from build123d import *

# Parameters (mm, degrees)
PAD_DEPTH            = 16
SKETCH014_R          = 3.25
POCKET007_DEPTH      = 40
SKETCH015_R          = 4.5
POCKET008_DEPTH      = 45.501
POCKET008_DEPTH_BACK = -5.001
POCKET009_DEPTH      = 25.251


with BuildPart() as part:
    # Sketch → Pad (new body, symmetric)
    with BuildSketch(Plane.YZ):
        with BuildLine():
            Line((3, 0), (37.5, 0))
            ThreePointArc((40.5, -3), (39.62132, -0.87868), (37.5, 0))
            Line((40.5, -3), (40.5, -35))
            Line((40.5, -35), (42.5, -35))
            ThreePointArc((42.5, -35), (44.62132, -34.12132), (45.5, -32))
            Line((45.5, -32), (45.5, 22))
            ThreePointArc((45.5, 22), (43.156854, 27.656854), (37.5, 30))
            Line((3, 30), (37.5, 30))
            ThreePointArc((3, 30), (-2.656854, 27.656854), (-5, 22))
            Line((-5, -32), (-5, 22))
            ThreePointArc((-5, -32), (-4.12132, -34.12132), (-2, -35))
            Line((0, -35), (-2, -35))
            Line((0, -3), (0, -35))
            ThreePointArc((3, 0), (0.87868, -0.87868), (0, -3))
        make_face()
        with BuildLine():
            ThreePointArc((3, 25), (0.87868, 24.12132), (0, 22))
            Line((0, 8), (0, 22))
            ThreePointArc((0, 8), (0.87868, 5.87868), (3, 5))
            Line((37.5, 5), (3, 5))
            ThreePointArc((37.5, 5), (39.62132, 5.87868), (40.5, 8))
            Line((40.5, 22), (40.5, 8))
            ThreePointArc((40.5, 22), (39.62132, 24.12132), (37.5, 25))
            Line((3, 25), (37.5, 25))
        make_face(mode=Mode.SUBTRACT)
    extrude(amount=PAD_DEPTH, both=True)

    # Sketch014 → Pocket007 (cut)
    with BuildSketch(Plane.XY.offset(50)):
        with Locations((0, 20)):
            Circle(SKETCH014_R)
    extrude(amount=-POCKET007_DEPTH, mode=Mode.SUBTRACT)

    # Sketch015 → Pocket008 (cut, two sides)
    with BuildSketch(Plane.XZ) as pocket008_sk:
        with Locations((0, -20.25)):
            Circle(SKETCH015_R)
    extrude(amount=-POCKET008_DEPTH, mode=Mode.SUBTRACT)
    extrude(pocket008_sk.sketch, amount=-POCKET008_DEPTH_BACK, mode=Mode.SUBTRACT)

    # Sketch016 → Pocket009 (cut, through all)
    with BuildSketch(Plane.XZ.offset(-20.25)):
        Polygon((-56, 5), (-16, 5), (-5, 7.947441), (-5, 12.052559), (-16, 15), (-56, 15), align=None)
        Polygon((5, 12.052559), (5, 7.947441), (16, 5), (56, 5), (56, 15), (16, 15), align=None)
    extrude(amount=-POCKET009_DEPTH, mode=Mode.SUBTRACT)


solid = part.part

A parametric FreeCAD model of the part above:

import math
import FreeCAD as App
import Part
import Sketcher

V = App.Vector
Q = App.Units.Quantity


def add_polygon(sketch, points):
    """Adds a closed chain of lines whose ends are joined by coincident constraints."""
    first, n = sketch.GeometryCount, len(points)
    for a, b in zip(points, points[1:] + points[:1]):
        sketch.addGeometry(Part.LineSegment(App.Vector(*a, 0), App.Vector(*b, 0)), False)
    for i in range(n):
        sketch.addConstraint(Sketcher.Constraint("Coincident", first + i, 2, first + (i + 1) % n, 1))

doc = App.newDocument("Part")
body = doc.addObject("PartDesign::Body", "Body")

# Sketch on YZ plane
sketch1 = doc.addObject("Sketcher::SketchObject", "Sketch")
body.addObject(sketch1)
sketch1.AttachmentSupport = (doc.YZ_Plane, [""])
sketch1.MapMode = "FlatFace"
sketch1.addGeometry(Part.LineSegment(V(3, 0, 0), V(37.5, 0, 0)), False)
sketch1.addGeometry(Part.ArcOfCircle(Part.Circle(V(37.499999, -3.000001, 0), V(0, 0, 1), 3.000001), math.radians(0.000022), math.radians(89.999978)), False)
sketch1.addGeometry(Part.LineSegment(V(40.5, -3, 0), V(40.5, -35, 0)), False)
sketch1.addGeometry(Part.LineSegment(V(40.5, -35, 0), V(42.5, -35, 0)), False)
sketch1.addGeometry(Part.ArcOfCircle(Part.Circle(V(42.499999, -31.999999, 0), V(0, 0, 1), 3.000001), math.radians(-89.999978), math.radians(-0.000022)), False)
sketch1.addGeometry(Part.LineSegment(V(45.5, -32, 0), V(45.5, 22, 0)), False)
sketch1.addGeometry(Part.ArcOfCircle(Part.Circle(V(37.499999, 21.999999, 0), V(0, 0, 1), 8.000001), math.radians(0.000006), math.radians(89.999994)), False)
sketch1.addGeometry(Part.LineSegment(V(37.5, 30, 0), V(3, 30, 0)), False)
sketch1.addGeometry(Part.ArcOfCircle(Part.Circle(V(3.000001, 21.999999, 0), V(0, 0, 1), 8.000001), math.radians(90.000006), math.radians(179.999994)), False)
sketch1.addGeometry(Part.LineSegment(V(-5, 22, 0), V(-5, -32, 0)), False)
sketch1.addGeometry(Part.ArcOfCircle(Part.Circle(V(-1.999999, -31.999999, 0), V(0, 0, 1), 3.000001), math.radians(-179.999978), math.radians(-90.000022)), False)
sketch1.addGeometry(Part.LineSegment(V(-2, -35, 0), V(0, -35, 0)), False)
sketch1.addGeometry(Part.LineSegment(V(0, -35, 0), V(0, -3, 0)), False)
sketch1.addGeometry(Part.ArcOfCircle(Part.Circle(V(3.000001, -3.000001, 0), V(0, 0, 1), 3.000001), math.radians(90.000022), math.radians(179.999978)), False)
sketch1.addGeometry(Part.ArcOfCircle(Part.Circle(V(3.000001, 21.999999, 0), V(0, 0, 1), 3.000001), math.radians(90.000022), math.radians(179.999978)), False)
sketch1.addGeometry(Part.LineSegment(V(3, 25, 0), V(37.5, 25, 0)), False)
sketch1.addGeometry(Part.ArcOfCircle(Part.Circle(V(37.499999, 21.999999, 0), V(0, 0, 1), 3.000001), math.radians(0.000022), math.radians(89.999978)), False)
sketch1.addGeometry(Part.LineSegment(V(40.5, 22, 0), V(40.5, 8, 0)), False)
sketch1.addGeometry(Part.ArcOfCircle(Part.Circle(V(37.499999, 8.000001, 0), V(0, 0, 1), 3.000001), math.radians(-89.999978), math.radians(-0.000022)), False)
sketch1.addGeometry(Part.LineSegment(V(37.5, 5, 0), V(3, 5, 0)), False)
sketch1.addGeometry(Part.ArcOfCircle(Part.Circle(V(3.000001, 8.000001, 0), V(0, 0, 1), 3.000001), math.radians(-179.999978), math.radians(-90.000022)), False)
sketch1.addGeometry(Part.LineSegment(V(0, 8, 0), V(0, 22, 0)), False)
sketch1.addConstraint(Sketcher.Constraint("Tangent", 0, 2, 1, 2))
sketch1.addConstraint(Sketcher.Constraint("Tangent", 1, 1, 2, 1))
sketch1.addConstraint(Sketcher.Constraint("Coincident", 2, 2, 3, 1))
sketch1.addConstraint(Sketcher.Constraint("Tangent", 3, 2, 4, 1))
sketch1.addConstraint(Sketcher.Constraint("Tangent", 4, 2, 5, 1))
sketch1.addConstraint(Sketcher.Constraint("Tangent", 5, 2, 6, 1))
sketch1.addConstraint(Sketcher.Constraint("Tangent", 6, 2, 7, 1))
sketch1.addConstraint(Sketcher.Constraint("Tangent", 7, 2, 8, 1))
sketch1.addConstraint(Sketcher.Constraint("Tangent", 8, 2, 9, 1))
sketch1.addConstraint(Sketcher.Constraint("Tangent", 9, 2, 10, 1))
sketch1.addConstraint(Sketcher.Constraint("Tangent", 10, 2, 11, 1))
sketch1.addConstraint(Sketcher.Constraint("Coincident", 11, 2, 12, 1))
sketch1.addConstraint(Sketcher.Constraint("Tangent", 12, 2, 13, 2))
sketch1.addConstraint(Sketcher.Constraint("Tangent", 13, 1, 0, 1))
sketch1.addConstraint(Sketcher.Constraint("Tangent", 14, 1, 15, 1))
sketch1.addConstraint(Sketcher.Constraint("Tangent", 15, 2, 16, 2))
sketch1.addConstraint(Sketcher.Constraint("Tangent", 16, 1, 17, 1))
sketch1.addConstraint(Sketcher.Constraint("Tangent", 17, 2, 18, 2))
sketch1.addConstraint(Sketcher.Constraint("Tangent", 18, 1, 19, 1))
sketch1.addConstraint(Sketcher.Constraint("Tangent", 19, 2, 20, 2))
sketch1.addConstraint(Sketcher.Constraint("Tangent", 20, 1, 21, 1))
sketch1.addConstraint(Sketcher.Constraint("Tangent", 21, 2, 14, 2))
sketch1.addConstraint(Sketcher.Constraint("Horizontal", 0))
sketch1.addConstraint(Sketcher.Constraint("Vertical", 2))
sketch1.addConstraint(Sketcher.Constraint("Horizontal", 3))
sketch1.addConstraint(Sketcher.Constraint("Vertical", 5))
sketch1.addConstraint(Sketcher.Constraint("Horizontal", 7))
sketch1.addConstraint(Sketcher.Constraint("Vertical", 9))
sketch1.addConstraint(Sketcher.Constraint("Horizontal", 11))
sketch1.addConstraint(Sketcher.Constraint("Vertical", 12))
sketch1.addConstraint(Sketcher.Constraint("Horizontal", 15))
sketch1.addConstraint(Sketcher.Constraint("Vertical", 17))
sketch1.addConstraint(Sketcher.Constraint("Horizontal", 19))
sketch1.addConstraint(Sketcher.Constraint("Vertical", 21))
sketch1.addConstraint(Sketcher.Constraint("Coincident", 14, 3, 8, 3))
sketch1.addConstraint(Sketcher.Constraint("Coincident", 16, 3, 6, 3))
sketch1.addConstraint(Sketcher.Constraint("Equal", 1, 4))
sketch1.addConstraint(Sketcher.Constraint("Equal", 6, 8))
sketch1.addConstraint(Sketcher.Constraint("Equal", 4, 10))
sketch1.addConstraint(Sketcher.Constraint("Equal", 10, 13))
sketch1.addConstraint(Sketcher.Constraint("Equal", 13, 14))
sketch1.addConstraint(Sketcher.Constraint("Equal", 16, 18))
sketch1.addConstraint(Sketcher.Constraint("Equal", 18, 20))
sketch1.addConstraint(Sketcher.Constraint("PointOnObject", 0, 2, -1))
sketch1.addConstraint(Sketcher.Constraint("PointOnObject", 11, 2, -2))
sketch1.addConstraint(Sketcher.Constraint("PointOnObject", 20, 1, -2))
sketch1.addConstraint(Sketcher.Constraint("Horizontal", 4, 3, 10, 3))
sketch1.addConstraint(Sketcher.Constraint("Vertical", 1, 3, 6, 3))
sketch1.addConstraint(Sketcher.Constraint("Radius", 1, 3.000001))
sketch1.addConstraint(Sketcher.Constraint("Radius", 6, 8.000001))
sketch1.addConstraint(Sketcher.Constraint("DistanceY", 2, 2, 2, 1, 32.0))
sketch1.addConstraint(Sketcher.Constraint("DistanceY", 5, 1, 5, 2, 54.0))
sketch1.addConstraint(Sketcher.Constraint("DistanceY", 17, 2, 17, 1, 14.0))
sketch1.addConstraint(Sketcher.Constraint("DistanceX", 0, 1, 0, 2, 34.5))
pad1 = doc.addObject("PartDesign::Pad", "Pad")
body.addObject(pad1)
pad1.Profile = sketch1
pad1.Length = 32
pad1.Midplane = True

# Sketch on XY plane
sketch2 = doc.addObject("Sketcher::SketchObject", "Sketch001")
body.addObject(sketch2)
sketch2.AttachmentSupport = (doc.XY_Plane, [""])
sketch2.MapMode = "FlatFace"
sketch2.AttachmentOffset = App.Placement(V(0, 0, 50), App.Rotation())
sketch2.addGeometry(Part.Circle(V(0, 20, 0), V(0, 0, 1), 3.25), False)
sketch2.addConstraint(Sketcher.Constraint("PointOnObject", 0, 3, -2))
sketch2.addConstraint(Sketcher.Constraint("Diameter", 0, 6.5))
sketch2.addConstraint(Sketcher.Constraint("DistanceY", -1, 1, 0, 3, 20.0))
pocket1 = doc.addObject("PartDesign::Pocket", "Pocket")
body.addObject(pocket1)
pocket1.Profile = sketch2
pocket1.Length = 40

# Sketch on XZ plane
sketch3 = doc.addObject("Sketcher::SketchObject", "Sketch002")
body.addObject(sketch3)
sketch3.AttachmentSupport = (doc.XZ_Plane, [""])
sketch3.MapMode = "FlatFace"
sketch3.addGeometry(Part.Circle(V(0, -20.25, 0), V(0, 0, 1), 4.5), False)
sketch3.addConstraint(Sketcher.Constraint("PointOnObject", 0, 3, -2))
sketch3.addConstraint(Sketcher.Constraint("Diameter", 0, 9.0))
sketch3.addConstraint(Sketcher.Constraint("DistanceY", 0, 3, -1, 1, 20.25))
pocket2 = doc.addObject("PartDesign::Pocket", "Pocket001")
body.addObject(pocket2)
pocket2.Profile = sketch3
pocket2.Type = "ThroughAll"
pocket2.Midplane = True

# Sketch on XZ plane
sketch4 = doc.addObject("Sketcher::SketchObject", "Sketch003")
body.addObject(sketch4)
sketch4.AttachmentSupport = (doc.XZ_Plane, [""])
sketch4.MapMode = "FlatFace"
sketch4.AttachmentOffset = App.Placement(V(0, 0, -20.25), App.Rotation())
add_polygon(sketch4, [(-56, 5), (-16, 5), (-5, 7.947441), (-5, 12.052559), (-16, 15), (-56, 15)])  # lines 0-5
add_polygon(sketch4, [(5, 12.052559), (5, 7.947441), (16, 5), (56, 5), (56, 15), (16, 15)])  # lines 6-11
sketch4.addConstraint(Sketcher.Constraint("Horizontal", 0))
sketch4.addConstraint(Sketcher.Constraint("Vertical", 2))
sketch4.addConstraint(Sketcher.Constraint("Horizontal", 4))
sketch4.addConstraint(Sketcher.Constraint("Vertical", 5))
sketch4.addConstraint(Sketcher.Constraint("Vertical", 6))
sketch4.addConstraint(Sketcher.Constraint("Horizontal", 8))
sketch4.addConstraint(Sketcher.Constraint("Vertical", 9))
sketch4.addConstraint(Sketcher.Constraint("Horizontal", 10))
sketch4.addConstraint(Sketcher.Constraint("Symmetric", 1, 2, 6, 2, -2))
sketch4.addConstraint(Sketcher.Constraint("Symmetric", 0, 2, 7, 2, -2))
sketch4.addConstraint(Sketcher.Constraint("Symmetric", 4, 2, 9, 2, -2))
sketch4.addConstraint(Sketcher.Constraint("Parallel", 3, 7))
sketch4.addConstraint(Sketcher.Constraint("Parallel", 1, 11))
sketch4.addConstraint(Sketcher.Constraint("Horizontal", 2, 2, 11, 2))
sketch4.addConstraint(Sketcher.Constraint("Vertical", 0, 2, 3, 2))
sketch4.addConstraint(Sketcher.Constraint("DistanceX", 0, 1, 0, 2, 40.0))
sketch4.addConstraint(Sketcher.Constraint("DistanceY", 5, 2, 5, 1, 10.0))
sketch4.addConstraint(Sketcher.Constraint("Angle", 1, Q("14.999999 deg")))
sketch4.addConstraint(Sketcher.Constraint("DistanceX", 0, 2, -1, 1, 16.0))
sketch4.addConstraint(Sketcher.Constraint("DistanceY", -1, 1, 0, 2, 5.0))
sketch4.addConstraint(Sketcher.Constraint("DistanceX", 1, 2, -1, 1, 5.0))
pocket3 = doc.addObject("PartDesign::Pocket", "Pocket002")
body.addObject(pocket3)
pocket3.Profile = sketch4
pocket3.Type = "ThroughAll"

doc.recompute()
